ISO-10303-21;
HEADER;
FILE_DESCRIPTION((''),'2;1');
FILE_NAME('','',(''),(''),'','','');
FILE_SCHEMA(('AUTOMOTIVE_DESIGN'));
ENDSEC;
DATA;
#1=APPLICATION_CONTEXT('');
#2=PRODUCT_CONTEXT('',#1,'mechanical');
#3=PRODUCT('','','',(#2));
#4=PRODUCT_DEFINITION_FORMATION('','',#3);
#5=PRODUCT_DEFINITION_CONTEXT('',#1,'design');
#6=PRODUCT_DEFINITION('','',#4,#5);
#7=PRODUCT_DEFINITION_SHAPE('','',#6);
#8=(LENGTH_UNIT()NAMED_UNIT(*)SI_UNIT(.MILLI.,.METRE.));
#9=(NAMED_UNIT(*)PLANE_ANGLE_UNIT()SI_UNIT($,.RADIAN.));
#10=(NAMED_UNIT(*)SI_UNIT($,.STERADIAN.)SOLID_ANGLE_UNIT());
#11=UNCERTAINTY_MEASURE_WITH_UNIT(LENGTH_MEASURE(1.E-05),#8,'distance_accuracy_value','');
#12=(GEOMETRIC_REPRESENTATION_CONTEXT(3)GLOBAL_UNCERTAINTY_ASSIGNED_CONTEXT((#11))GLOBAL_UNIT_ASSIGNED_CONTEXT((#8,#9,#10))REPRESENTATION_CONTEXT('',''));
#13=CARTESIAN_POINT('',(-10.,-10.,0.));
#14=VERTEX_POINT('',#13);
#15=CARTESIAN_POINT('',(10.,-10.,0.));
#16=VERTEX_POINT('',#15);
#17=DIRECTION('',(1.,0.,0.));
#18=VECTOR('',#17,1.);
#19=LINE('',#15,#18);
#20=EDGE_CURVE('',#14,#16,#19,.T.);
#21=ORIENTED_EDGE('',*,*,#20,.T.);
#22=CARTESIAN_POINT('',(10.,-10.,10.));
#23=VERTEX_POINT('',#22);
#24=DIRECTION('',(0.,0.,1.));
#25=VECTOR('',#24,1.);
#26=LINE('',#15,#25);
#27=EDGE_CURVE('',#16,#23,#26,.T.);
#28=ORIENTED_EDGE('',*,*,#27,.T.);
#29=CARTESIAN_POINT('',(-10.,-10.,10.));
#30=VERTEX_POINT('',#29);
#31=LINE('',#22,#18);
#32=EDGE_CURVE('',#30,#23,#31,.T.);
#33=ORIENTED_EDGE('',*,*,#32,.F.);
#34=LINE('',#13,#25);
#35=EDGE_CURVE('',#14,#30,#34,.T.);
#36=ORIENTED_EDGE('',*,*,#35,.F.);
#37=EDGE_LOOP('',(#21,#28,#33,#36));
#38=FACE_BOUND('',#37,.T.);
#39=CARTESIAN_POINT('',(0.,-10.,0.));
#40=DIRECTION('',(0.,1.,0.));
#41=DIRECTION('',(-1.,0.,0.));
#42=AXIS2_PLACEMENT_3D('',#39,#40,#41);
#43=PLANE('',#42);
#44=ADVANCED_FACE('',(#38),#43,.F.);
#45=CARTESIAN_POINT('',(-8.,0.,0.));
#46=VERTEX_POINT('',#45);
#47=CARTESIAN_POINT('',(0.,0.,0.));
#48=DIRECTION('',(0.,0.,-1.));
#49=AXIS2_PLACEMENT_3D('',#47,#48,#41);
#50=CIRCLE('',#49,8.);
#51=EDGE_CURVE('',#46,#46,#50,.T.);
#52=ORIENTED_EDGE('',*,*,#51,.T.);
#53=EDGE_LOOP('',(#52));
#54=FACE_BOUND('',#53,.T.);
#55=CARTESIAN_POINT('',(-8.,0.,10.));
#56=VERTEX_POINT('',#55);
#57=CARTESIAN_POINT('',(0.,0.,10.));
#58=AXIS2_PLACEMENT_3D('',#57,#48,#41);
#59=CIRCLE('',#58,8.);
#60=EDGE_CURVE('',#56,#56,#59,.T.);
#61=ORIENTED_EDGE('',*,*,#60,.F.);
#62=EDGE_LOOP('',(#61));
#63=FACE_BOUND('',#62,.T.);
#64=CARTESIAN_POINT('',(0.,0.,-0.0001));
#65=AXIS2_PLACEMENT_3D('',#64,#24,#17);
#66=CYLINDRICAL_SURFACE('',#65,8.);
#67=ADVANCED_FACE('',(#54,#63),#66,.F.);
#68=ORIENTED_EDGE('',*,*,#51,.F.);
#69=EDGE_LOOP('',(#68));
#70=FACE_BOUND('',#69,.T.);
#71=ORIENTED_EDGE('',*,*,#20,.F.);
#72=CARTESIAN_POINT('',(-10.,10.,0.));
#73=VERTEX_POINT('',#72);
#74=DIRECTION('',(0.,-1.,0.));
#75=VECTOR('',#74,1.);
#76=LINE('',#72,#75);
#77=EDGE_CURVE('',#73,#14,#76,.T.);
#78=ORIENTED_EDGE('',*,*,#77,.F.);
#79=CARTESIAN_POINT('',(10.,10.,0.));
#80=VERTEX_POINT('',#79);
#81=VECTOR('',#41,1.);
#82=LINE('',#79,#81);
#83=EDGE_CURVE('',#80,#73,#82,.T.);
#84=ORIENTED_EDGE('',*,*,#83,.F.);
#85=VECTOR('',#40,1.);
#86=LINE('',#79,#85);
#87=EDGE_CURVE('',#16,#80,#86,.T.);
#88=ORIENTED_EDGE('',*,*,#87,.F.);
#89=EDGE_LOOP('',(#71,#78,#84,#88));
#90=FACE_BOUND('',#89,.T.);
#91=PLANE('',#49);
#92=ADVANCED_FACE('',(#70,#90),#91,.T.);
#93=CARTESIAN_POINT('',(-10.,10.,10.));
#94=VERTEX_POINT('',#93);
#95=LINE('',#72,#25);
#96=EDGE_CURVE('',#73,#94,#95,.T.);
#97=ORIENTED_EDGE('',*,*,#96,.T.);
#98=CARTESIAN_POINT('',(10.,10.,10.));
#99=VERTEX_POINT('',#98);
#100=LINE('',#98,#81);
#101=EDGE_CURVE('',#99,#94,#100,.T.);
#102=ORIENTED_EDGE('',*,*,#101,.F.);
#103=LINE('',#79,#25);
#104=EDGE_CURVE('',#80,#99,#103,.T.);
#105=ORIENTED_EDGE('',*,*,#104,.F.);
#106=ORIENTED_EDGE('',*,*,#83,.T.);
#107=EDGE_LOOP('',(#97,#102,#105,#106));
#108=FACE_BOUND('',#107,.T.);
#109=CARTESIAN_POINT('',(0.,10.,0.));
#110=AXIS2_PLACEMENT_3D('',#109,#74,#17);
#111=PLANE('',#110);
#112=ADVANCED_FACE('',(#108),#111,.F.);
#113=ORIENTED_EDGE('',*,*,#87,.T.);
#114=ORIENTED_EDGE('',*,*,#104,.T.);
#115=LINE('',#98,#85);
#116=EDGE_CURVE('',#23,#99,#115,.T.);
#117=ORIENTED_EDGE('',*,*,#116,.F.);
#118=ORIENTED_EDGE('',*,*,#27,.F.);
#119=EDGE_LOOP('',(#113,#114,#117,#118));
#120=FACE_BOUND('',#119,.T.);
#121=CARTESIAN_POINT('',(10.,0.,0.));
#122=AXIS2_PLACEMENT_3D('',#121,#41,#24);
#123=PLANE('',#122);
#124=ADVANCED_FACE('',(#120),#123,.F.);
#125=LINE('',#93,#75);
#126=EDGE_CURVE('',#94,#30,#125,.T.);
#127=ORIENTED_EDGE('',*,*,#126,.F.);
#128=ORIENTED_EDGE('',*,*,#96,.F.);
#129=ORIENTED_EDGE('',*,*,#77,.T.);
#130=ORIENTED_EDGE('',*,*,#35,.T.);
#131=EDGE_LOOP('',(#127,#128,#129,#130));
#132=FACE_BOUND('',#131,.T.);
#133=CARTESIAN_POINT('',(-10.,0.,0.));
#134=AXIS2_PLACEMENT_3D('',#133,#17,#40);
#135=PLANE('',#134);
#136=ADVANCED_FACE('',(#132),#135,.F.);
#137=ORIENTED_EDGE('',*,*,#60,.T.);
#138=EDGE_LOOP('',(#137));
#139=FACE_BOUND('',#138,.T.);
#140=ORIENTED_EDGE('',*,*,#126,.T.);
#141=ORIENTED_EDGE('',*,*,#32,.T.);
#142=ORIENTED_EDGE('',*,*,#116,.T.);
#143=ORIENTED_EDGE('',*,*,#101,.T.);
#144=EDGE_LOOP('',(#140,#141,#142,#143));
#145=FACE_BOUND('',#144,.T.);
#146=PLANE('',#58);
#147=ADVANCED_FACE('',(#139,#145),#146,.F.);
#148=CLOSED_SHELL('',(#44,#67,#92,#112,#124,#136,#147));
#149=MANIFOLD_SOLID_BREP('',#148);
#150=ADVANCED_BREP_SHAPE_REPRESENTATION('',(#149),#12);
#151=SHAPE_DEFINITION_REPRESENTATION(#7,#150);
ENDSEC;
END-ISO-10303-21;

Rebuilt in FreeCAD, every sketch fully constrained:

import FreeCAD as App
import Part
import Sketcher
Q = App.Units.Quantity


def add_polygon(sketch, points):
    """Adds a closed chain of lines whose ends are joined by coincident constraints."""
    first, n = sketch.GeometryCount, len(points)
    for a, b in zip(points, points[1:] + points[:1]):
        sketch.addGeometry(Part.LineSegment(App.Vector(*a, 0), App.Vector(*b, 0)), False)
    for i in range(n):
        sketch.addConstraint(Sketcher.Constraint("Coincident", first + i, 2, first + (i + 1) % n, 1))

doc = App.newDocument("Part")
body = doc.addObject("PartDesign::Body", "Body")

# Sketch on XY plane
sketch1 = body.newObject("Sketcher::SketchObject", "Sketch")
sketch1.AttachmentSupport = (doc.getObject("XY_Plane"), [""])
sketch1.MapMode = "FlatFace"
add_polygon(sketch1, [(10, 10), (-10, 10), (-10, -10), (10, -10)])  # lines 0-3
sketch1.addConstraint([
    Sketcher.Constraint("Horizontal", 0),
    Sketcher.Constraint("Vertical", 1),
    Sketcher.Constraint("Horizontal", 2),
    Sketcher.Constraint("Vertical", 3),
    Sketcher.Constraint("Symmetric", 0, 2, 2, 2, -1, 1),
    Sketcher.Constraint("Equal", 2, 1),
    Sketcher.Constraint("DistanceX", 0, 2, 0, 1, Q("20 mm")),
])

# Sketch on XY plane
sketch2 = body.newObject("Sketcher::SketchObject", "Sketch001")
sketch2.AttachmentSupport = (doc.getObject("XY_Plane"), [""])
sketch2.MapMode = "FlatFace"
sketch2.AttachmentOffset = App.Placement(App.Vector(0, 0, 10), App.Rotation())
add_polygon(sketch2, [(10, 10), (-10, 10), (-10, -10), (10, -10)])  # lines 0-3
sketch2.addConstraint([
    Sketcher.Constraint("Horizontal", 0),
    Sketcher.Constraint("Vertical", 1),
    Sketcher.Constraint("Horizontal", 2),
    Sketcher.Constraint("Vertical", 3),
    Sketcher.Constraint("Symmetric", 0, 2, 2, 2, -1, 1),
    Sketcher.Constraint("Equal", 2, 1),
    Sketcher.Constraint("DistanceX", 0, 2, 0, 1, Q("20 mm")),
])

additiveloft = body.newObject("PartDesign::AdditiveLoft", "AdditiveLoft")
additiveloft.Profile = sketch1
additiveloft.Sections = [sketch2]

# Sketch on XY plane
sketch3 = body.newObject("Sketcher::SketchObject", "Sketch002")
sketch3.AttachmentSupport = (doc.getObject("XY_Plane"), [""])
sketch3.MapMode = "FlatFace"
sketch3.addGeometry(Part.Circle(App.Vector(0, 0, 0), App.Vector(0, 0, 1), 8), False)
sketch3.addConstraint([
    Sketcher.Constraint("Coincident", 0, 3, -1, 1),
    Sketcher.Constraint("Diameter", 0, Q("16 mm")),
])
pocket1 = body.newObject("PartDesign::Pocket", "Pocket")
pocket1.Profile = sketch3
pocket1.Type = "ThroughAll"
pocket1.Midplane = True

doc.recompute()
